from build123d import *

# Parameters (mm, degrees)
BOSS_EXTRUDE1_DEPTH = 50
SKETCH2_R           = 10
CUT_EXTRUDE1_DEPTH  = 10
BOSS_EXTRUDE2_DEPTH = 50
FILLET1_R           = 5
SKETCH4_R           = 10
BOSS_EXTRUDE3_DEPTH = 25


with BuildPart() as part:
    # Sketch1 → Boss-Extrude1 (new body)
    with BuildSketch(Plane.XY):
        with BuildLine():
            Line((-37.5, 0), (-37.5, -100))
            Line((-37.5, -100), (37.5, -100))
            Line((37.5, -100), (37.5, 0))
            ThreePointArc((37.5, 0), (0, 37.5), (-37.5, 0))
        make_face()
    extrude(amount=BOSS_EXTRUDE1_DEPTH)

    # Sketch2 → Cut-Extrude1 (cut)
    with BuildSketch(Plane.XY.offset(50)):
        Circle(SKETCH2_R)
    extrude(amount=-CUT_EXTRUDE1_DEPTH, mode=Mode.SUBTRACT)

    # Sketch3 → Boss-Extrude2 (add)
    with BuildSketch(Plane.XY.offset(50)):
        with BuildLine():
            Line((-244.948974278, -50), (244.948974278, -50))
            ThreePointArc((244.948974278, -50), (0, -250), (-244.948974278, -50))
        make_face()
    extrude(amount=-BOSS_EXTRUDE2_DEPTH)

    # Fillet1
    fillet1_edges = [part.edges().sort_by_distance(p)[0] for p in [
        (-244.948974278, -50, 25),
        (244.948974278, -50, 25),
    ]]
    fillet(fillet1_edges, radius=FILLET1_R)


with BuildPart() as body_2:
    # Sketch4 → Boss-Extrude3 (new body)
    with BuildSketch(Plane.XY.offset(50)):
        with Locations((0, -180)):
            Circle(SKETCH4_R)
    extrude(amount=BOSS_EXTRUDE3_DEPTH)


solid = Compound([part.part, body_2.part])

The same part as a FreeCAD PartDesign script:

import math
import FreeCAD as App
import Part
import Sketcher


def edges_at(feature, points):
    """Names of the edges that pass closest to the given points."""
    edges = feature.Shape.Edges
    near = lambda p: min(range(len(edges)), key=lambda i: edges[i].distToShape(Part.Vertex(*p))[0])
    return sorted({f"Edge{near(p) + 1}" for p in points})

doc = App.newDocument("Part")
body = doc.addObject("PartDesign::Body", "Body")

# Sketch on XY plane
sketch1 = body.newObject("Sketcher::SketchObject", "Sketch")
sketch1.AttachmentSupport = (doc.getObject("XY_Plane"), [""])
sketch1.MapMode = "FlatFace"
sketch1.addGeometry([
    Part.LineSegment(App.Vector(-37.5, 0, 0), App.Vector(-37.5, -100, 0)),
    Part.LineSegment(App.Vector(-37.5, -100, 0), App.Vector(37.5, -100, 0)),
    Part.LineSegment(App.Vector(37.5, -100, 0), App.Vector(37.5, 0, 0)),
    Part.ArcOfCircle(Part.Circle(App.Vector(0, 0, 0), App.Vector(0, 0, 1), 37.5), math.radians(0), math.radians(180)),
], False)
sketch1.addConstraint([
    Sketcher.Constraint("Coincident", 0, 2, 1, 1),
    Sketcher.Constraint("Coincident", 1, 2, 2, 1),
    Sketcher.Constraint("Tangent", 2, 2, 3, 1),
    Sketcher.Constraint("Tangent", 3, 2, 0, 1),
    Sketcher.Constraint("Vertical", 0),
    Sketcher.Constraint("Horizontal", 1),
    Sketcher.Constraint("Vertical", 2),
    Sketcher.Constraint("Coincident", 3, 3, -1, 1),
    Sketcher.Constraint("Radius", 3, 37.5),
    Sketcher.Constraint("DistanceY", 0, 2, 0, 1, 100.0),
])
pad1 = body.newObject("PartDesign::Pad", "Pad")
pad1.Profile = sketch1
pad1.Length = 50

# Sketch on XY plane
sketch2 = body.newObject("Sketcher::SketchObject", "Sketch001")
sketch2.AttachmentSupport = (doc.getObject("XY_Plane"), [""])
sketch2.MapMode = "FlatFace"
sketch2.AttachmentOffset = App.Placement(App.Vector(0, 0, 50), App.Rotation())
sketch2.addGeometry(Part.Circle(App.Vector(0, 0, 0), App.Vector(0, 0, 1), 10), False)
sketch2.addConstraint([
    Sketcher.Constraint("Coincident", 0, 3, -1, 1),
    Sketcher.Constraint("Diameter", 0, 20.0),
])
pocket1 = body.newObject("PartDesign::Pocket", "Pocket")
pocket1.Profile = sketch2
pocket1.Length = 10

# Sketch on XY plane
sketch3 = body.newObject("Sketcher::SketchObject", "Sketch002")
sketch3.AttachmentSupport = (doc.getObject("XY_Plane"), [""])
sketch3.MapMode = "FlatFace"
sketch3.AttachmentOffset = App.Placement(App.Vector(0, 0, 50), App.Rotation())
sketch3.addGeometry([
    Part.LineSegment(App.Vector(244.948974, -50, 0), App.Vector(-244.948974, -50, 0)),
    Part.ArcOfCircle(Part.Circle(App.Vector(0, 0, 0), App.Vector(0, 0, 1), 250), math.radians(-168.463041), math.radians(-11.536959)),
], False)
sketch3.addConstraint([
    Sketcher.Constraint("Coincident", 0, 1, 1, 2),
    Sketcher.Constraint("Coincident", 1, 1, 0, 2),
    Sketcher.Constraint("Horizontal", 0),
    Sketcher.Constraint("Coincident", 1, 3, -1, 1),
    Sketcher.Constraint("Radius", 1, 250.0),
    Sketcher.Constraint("DistanceY", 0, 1, -1, 1, 50.0),
])
pad2 = body.newObject("PartDesign::Pad", "Pad001")
pad2.Profile = sketch3
pad2.Length = 50
pad2.Reversed = True
doc.recompute()

fillet = body.newObject("PartDesign::Fillet", "Fillet")
fillet.Base = (pad2, edges_at(pad2, [(-244.949, -50, 25), (244.949, -50, 25)]))
fillet.Radius = 5
body2 = doc.addObject("PartDesign::Body", "Body001")

# Sketch on XY plane
sketch4 = body2.newObject("Sketcher::SketchObject", "Sketch003")
sketch4.AttachmentSupport = (doc.getObject("XY_Plane001"), [""])
sketch4.MapMode = "FlatFace"
sketch4.AttachmentOffset = App.Placement(App.Vector(0, 0, 50), App.Rotation())
sketch4.addGeometry(Part.Circle(App.Vector(0, -180, 0), App.Vector(0, 0, 1), 10), False)
sketch4.addConstraint([
    Sketcher.Constraint("PointOnObject", 0, 3, -2),
    Sketcher.Constraint("Diameter", 0, 20.0),
    Sketcher.Constraint("DistanceY", 0, 3, -1, 1, 180.0),
])
pad3 = body2.newObject("PartDesign::Pad", "Pad002")
pad3.Profile = sketch4
pad3.Length = 25

doc.recompute()
